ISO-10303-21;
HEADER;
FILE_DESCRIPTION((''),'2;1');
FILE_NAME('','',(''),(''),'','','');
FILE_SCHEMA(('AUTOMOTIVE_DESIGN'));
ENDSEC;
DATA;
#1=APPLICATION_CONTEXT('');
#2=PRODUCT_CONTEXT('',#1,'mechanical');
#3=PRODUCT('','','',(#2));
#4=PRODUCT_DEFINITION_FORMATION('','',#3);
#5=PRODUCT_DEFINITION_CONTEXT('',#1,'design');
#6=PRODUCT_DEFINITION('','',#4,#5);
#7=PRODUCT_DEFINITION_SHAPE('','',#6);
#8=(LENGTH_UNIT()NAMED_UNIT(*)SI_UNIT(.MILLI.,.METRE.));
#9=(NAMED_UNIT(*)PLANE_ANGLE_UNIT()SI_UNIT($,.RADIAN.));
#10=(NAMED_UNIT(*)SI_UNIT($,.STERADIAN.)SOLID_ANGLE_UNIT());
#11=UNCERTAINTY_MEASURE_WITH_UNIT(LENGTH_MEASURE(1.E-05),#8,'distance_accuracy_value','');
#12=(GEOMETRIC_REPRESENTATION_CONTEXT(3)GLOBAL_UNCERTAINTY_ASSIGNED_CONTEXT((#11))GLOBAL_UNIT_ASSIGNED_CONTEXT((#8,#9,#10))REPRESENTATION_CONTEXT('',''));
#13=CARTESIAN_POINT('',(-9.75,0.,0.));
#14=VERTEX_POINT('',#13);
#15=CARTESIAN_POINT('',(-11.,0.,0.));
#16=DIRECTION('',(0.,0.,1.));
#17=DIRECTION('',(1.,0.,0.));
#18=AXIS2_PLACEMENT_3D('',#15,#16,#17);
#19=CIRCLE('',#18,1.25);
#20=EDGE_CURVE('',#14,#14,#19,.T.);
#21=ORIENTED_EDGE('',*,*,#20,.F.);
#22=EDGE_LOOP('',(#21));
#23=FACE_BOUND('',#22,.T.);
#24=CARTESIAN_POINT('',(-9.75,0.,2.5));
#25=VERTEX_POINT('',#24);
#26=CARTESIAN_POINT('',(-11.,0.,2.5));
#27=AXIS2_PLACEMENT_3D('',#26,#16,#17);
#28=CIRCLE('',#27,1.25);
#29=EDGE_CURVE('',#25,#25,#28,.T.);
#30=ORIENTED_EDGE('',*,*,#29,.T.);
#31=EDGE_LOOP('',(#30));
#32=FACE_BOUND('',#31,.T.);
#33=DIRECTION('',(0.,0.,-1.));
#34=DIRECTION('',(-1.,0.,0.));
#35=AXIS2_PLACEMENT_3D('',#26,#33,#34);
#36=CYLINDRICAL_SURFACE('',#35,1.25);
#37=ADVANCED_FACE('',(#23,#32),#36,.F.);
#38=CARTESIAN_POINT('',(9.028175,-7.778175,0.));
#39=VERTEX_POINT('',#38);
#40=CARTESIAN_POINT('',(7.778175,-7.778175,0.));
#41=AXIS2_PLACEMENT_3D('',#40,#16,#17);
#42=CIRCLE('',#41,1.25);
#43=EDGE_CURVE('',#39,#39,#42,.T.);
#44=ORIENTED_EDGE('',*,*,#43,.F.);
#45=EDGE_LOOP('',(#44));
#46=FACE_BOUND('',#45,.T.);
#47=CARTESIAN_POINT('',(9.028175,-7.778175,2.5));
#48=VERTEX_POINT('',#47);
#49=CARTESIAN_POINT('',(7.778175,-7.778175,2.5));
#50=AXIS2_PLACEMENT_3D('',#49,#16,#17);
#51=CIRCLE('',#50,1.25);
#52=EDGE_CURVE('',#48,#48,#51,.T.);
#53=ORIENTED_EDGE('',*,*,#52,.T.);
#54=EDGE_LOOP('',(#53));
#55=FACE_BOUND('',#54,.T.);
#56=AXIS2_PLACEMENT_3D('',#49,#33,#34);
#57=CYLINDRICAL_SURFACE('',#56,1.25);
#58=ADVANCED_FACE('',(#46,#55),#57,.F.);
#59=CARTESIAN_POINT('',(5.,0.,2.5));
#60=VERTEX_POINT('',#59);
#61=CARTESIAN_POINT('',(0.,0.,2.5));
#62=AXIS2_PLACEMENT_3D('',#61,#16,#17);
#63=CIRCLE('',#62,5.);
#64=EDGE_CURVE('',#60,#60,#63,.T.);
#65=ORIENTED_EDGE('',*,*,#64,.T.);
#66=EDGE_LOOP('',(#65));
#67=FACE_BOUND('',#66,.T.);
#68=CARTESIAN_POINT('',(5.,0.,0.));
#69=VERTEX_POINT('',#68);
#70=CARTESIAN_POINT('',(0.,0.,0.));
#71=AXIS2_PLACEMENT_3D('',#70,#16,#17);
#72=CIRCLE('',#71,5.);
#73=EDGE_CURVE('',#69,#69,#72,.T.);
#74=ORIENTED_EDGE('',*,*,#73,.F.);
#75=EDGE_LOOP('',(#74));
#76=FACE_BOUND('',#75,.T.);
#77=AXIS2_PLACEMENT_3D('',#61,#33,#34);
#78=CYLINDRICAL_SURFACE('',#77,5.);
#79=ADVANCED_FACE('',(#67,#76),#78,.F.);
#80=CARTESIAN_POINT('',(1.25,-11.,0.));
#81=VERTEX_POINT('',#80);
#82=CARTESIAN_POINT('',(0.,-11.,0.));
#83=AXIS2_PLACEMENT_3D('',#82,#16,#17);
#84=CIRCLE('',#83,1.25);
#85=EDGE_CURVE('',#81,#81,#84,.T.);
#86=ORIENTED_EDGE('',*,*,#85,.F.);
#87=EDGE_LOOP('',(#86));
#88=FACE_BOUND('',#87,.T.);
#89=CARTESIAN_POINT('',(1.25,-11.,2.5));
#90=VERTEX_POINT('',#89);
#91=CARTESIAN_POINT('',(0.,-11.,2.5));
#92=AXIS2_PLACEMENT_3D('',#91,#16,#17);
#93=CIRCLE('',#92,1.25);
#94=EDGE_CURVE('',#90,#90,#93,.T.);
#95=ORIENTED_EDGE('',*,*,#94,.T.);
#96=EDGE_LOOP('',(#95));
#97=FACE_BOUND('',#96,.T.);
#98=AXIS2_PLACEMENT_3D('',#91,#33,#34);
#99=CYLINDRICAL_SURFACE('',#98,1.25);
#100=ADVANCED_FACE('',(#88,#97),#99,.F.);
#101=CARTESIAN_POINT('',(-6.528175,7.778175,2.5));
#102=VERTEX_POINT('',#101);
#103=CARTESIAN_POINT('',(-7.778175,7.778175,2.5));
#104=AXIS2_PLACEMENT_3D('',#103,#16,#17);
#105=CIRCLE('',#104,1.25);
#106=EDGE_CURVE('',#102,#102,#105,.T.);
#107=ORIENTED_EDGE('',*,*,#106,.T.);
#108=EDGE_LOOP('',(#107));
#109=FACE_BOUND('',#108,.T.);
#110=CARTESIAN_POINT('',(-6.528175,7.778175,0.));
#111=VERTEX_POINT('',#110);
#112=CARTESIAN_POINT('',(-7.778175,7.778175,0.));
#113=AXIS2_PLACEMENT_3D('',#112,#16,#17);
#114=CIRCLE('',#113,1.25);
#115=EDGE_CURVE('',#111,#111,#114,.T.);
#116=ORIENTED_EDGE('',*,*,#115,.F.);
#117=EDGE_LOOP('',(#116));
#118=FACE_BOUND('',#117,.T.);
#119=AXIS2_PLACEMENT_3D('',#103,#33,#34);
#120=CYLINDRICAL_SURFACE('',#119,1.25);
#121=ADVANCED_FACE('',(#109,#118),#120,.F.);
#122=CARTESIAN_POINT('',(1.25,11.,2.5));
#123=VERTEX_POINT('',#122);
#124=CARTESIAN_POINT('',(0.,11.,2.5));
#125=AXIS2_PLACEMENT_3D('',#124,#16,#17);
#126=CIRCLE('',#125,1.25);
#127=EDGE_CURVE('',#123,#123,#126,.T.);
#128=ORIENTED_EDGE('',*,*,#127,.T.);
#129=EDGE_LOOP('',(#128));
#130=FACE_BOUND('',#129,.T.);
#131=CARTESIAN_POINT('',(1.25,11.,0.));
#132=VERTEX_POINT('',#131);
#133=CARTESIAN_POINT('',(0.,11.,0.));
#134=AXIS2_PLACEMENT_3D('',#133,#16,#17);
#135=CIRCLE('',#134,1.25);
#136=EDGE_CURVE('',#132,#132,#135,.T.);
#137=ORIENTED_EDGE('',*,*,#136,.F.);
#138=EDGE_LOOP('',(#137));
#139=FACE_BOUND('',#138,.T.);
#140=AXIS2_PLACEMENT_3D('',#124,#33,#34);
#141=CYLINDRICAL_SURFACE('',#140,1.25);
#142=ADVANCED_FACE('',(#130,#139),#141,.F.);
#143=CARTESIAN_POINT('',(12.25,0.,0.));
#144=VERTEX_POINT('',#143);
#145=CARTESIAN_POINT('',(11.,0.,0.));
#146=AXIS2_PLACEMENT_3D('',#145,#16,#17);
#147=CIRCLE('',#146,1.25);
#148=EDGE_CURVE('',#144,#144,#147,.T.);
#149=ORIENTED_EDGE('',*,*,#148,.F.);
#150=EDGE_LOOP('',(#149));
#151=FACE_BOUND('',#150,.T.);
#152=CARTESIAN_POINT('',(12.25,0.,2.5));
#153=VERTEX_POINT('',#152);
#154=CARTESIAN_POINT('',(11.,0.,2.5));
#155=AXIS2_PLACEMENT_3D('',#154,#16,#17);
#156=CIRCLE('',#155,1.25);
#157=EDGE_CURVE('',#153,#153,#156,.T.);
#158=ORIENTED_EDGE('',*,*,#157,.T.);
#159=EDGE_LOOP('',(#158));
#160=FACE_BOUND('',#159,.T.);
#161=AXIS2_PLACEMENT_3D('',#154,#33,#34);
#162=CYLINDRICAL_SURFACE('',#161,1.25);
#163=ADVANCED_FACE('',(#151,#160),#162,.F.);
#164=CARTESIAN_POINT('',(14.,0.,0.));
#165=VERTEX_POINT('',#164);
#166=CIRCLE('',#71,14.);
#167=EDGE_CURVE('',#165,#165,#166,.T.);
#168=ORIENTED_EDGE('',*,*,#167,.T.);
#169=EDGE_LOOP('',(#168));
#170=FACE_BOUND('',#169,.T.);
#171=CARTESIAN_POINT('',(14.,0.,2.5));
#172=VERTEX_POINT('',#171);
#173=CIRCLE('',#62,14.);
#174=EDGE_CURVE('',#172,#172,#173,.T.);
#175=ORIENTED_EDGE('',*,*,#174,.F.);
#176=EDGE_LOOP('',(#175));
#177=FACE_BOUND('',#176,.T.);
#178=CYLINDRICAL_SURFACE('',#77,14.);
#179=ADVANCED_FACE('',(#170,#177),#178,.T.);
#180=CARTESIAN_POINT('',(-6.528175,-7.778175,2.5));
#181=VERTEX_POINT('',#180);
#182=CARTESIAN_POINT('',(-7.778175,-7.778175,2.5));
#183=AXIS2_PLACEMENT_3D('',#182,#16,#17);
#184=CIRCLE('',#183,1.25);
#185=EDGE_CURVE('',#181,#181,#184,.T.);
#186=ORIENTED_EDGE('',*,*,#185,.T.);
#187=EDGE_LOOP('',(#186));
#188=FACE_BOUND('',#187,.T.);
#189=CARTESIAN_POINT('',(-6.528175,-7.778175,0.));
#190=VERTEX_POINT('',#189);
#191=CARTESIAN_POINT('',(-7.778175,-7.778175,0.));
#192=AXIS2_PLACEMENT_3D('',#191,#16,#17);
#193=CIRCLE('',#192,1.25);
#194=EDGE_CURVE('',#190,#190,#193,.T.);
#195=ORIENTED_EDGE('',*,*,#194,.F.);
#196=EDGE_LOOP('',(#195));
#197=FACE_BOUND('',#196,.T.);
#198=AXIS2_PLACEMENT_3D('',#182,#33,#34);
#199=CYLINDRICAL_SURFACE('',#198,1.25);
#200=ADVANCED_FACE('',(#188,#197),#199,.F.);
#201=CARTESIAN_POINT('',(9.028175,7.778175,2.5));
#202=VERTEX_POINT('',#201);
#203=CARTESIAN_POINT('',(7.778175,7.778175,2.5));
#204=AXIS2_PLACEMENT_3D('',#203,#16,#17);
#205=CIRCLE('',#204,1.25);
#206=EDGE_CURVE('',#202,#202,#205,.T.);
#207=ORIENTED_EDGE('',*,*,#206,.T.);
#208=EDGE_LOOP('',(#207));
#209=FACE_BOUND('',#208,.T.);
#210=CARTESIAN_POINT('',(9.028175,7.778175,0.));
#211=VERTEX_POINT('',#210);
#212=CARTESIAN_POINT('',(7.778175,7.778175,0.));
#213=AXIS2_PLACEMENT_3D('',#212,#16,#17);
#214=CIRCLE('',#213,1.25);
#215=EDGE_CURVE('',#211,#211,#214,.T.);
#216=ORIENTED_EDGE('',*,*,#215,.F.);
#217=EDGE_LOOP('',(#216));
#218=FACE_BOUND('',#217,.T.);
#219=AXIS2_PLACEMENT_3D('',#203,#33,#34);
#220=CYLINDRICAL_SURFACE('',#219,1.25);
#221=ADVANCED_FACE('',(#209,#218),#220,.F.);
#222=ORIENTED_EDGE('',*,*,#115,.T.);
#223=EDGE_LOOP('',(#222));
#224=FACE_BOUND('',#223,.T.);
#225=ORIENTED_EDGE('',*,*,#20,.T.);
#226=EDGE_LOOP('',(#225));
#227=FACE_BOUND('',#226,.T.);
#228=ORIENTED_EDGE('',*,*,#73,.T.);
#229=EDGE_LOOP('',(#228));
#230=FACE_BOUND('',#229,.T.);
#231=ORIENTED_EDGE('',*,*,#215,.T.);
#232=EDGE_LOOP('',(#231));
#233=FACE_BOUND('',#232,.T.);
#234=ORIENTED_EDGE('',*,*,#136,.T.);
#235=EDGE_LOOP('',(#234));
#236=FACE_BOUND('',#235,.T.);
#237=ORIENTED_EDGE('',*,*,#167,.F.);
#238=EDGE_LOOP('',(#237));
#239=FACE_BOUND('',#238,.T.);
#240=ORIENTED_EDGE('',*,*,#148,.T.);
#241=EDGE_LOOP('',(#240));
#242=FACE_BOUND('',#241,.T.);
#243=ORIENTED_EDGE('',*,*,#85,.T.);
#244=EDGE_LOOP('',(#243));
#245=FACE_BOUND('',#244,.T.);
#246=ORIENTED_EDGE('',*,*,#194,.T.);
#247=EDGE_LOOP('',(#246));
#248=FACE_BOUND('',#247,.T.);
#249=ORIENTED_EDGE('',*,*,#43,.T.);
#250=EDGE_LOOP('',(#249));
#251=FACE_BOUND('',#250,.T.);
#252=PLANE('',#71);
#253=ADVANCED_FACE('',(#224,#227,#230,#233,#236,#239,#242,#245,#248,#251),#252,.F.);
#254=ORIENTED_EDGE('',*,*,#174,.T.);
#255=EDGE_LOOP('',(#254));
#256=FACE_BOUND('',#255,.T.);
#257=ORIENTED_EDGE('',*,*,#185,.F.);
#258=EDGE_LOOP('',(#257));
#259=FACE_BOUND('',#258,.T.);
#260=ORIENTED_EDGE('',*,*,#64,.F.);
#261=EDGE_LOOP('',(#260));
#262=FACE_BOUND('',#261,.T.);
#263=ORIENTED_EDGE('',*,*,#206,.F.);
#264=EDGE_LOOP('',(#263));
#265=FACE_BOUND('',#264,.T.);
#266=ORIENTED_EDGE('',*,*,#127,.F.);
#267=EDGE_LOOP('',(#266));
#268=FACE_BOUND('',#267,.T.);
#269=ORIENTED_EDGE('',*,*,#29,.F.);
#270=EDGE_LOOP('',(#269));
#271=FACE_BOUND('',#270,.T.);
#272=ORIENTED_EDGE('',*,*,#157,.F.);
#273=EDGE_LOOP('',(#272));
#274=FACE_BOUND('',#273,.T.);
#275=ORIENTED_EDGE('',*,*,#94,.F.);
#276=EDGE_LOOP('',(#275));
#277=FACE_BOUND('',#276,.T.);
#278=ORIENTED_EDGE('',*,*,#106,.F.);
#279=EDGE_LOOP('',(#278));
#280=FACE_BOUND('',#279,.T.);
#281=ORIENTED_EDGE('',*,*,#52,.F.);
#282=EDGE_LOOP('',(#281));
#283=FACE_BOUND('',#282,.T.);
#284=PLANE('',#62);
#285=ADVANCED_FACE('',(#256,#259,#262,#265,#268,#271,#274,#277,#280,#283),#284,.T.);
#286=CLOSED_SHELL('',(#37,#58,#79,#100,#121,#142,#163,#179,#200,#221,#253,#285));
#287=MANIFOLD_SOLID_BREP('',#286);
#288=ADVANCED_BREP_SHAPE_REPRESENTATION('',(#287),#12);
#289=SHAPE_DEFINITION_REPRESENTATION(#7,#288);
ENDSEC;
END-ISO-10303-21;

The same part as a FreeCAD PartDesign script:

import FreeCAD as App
import Part
import Sketcher

V = App.Vector

doc = App.newDocument("Part")
body = doc.addObject("PartDesign::Body", "Body")

# Sketch on XY plane
sketch1 = body.newObject("Sketcher::SketchObject", "Sketch")
sketch1.AttachmentSupport = (doc.getObject("XY_Plane"), [""])
sketch1.MapMode = "FlatFace"
sketch1.addGeometry([
    Part.Circle(V(0, 0, 0), V(0, 0, 1), 14),  # 0
    Part.Circle(V(-7.778175, -7.778175, 0), V(0, 0, 1), 1.25),  # 1
    Part.Circle(V(0, -11, 0), V(0, 0, 1), 1.25),  # 2
    Part.Circle(V(-11, 0, 0), V(0, 0, 1), 1.25),  # 3
    Part.Circle(V(0, 0, 0), V(0, 0, 1), 5),  # 4
    Part.Circle(V(7.778175, -7.778175, 0), V(0, 0, 1), 1.25),  # 5
    Part.Circle(V(11, 0, 0), V(0, 0, 1), 1.25),  # 6
    Part.Circle(V(-7.778175, 7.778175, 0), V(0, 0, 1), 1.25),  # 7
    Part.Circle(V(0, 11, 0), V(0, 0, 1), 1.25),  # 8
    Part.Circle(V(7.778175, 7.778175, 0), V(0, 0, 1), 1.25),  # 9
], False)
sketch1.addConstraint([
    Sketcher.Constraint("Coincident", 0, 3, -1, 1),
    Sketcher.Constraint("Coincident", 4, 3, -1, 1),
    Sketcher.Constraint("Equal", 1, 2),
    Sketcher.Constraint("Equal", 2, 3),
    Sketcher.Constraint("Equal", 3, 5),
    Sketcher.Constraint("Equal", 5, 6),
    Sketcher.Constraint("Equal", 6, 7),
    Sketcher.Constraint("Equal", 7, 8),
    Sketcher.Constraint("Equal", 8, 9),
    Sketcher.Constraint("Symmetric", 3, 3, 6, 3, -1, 1),
    Sketcher.Constraint("Symmetric", 5, 3, 7, 3, -1, 1),
    Sketcher.Constraint("Symmetric", 2, 3, 8, 3, -1, 1),
    Sketcher.Constraint("Symmetric", 1, 3, 9, 3, -1, 1),
    Sketcher.Constraint("Symmetric", 1, 3, 5, 3, -2),
    Sketcher.Constraint("PointOnObject", 2, 3, -2),
    Sketcher.Constraint("PointOnObject", 3, 3, -1),
    Sketcher.Constraint("Diameter", 0, 28.0),
    Sketcher.Constraint("Diameter", 4, 10.0),
    Sketcher.Constraint("Diameter", 1, 2.5),
    Sketcher.Constraint("DistanceY", 2, 3, -1, 1, 11.0),
    Sketcher.Constraint("DistanceX", 3, 3, -1, 1, 11.0),
    Sketcher.Constraint("DistanceX", 1, 3, 5, 3, 15.556349),
    Sketcher.Constraint("DistanceY", 1, 3, 7, 3, 15.556349),
])
pad1 = body.newObject("PartDesign::Pad", "Pad")
pad1.Profile = sketch1
pad1.Length = 2.5

doc.recompute()
